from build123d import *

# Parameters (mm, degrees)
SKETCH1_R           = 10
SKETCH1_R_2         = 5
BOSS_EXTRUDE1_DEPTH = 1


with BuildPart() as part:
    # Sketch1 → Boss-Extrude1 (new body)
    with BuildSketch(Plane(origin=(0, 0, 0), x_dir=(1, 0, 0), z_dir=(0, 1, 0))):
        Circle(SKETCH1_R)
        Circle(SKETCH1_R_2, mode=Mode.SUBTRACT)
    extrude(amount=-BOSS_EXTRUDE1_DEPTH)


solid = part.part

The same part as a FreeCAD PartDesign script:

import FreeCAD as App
import Part
import Sketcher

V = App.Vector

doc = App.newDocument("Part")
body = doc.addObject("PartDesign::Body", "Body")

sketch1 = body.newObject("Sketcher::SketchObject", "Sketch")
sketch1.AttachmentSupport = (doc.getObject("XZ_Plane"), [""])
sketch1.MapMode = "FlatFace"
sketch1.addGeometry([
    Part.Circle(V(0, 0, 0), V(0, 0, 1), 10),
    Part.Circle(V(0, 0, 0), V(0, 0, 1), 5),
], False)
sketch1.addConstraint([
    Sketcher.Constraint("Coincident", 0, 3, -1, 1),
    Sketcher.Constraint("Coincident", 1, 3, -1, 1),
    Sketcher.Constraint("Diameter", 0, 20.0),
    Sketcher.Constraint("Diameter", 1, 10.0),
])
pad1 = body.newObject("PartDesign::Pad", "Pad")
pad1.Profile = sketch1
pad1.Length = 1

doc.recompute()
